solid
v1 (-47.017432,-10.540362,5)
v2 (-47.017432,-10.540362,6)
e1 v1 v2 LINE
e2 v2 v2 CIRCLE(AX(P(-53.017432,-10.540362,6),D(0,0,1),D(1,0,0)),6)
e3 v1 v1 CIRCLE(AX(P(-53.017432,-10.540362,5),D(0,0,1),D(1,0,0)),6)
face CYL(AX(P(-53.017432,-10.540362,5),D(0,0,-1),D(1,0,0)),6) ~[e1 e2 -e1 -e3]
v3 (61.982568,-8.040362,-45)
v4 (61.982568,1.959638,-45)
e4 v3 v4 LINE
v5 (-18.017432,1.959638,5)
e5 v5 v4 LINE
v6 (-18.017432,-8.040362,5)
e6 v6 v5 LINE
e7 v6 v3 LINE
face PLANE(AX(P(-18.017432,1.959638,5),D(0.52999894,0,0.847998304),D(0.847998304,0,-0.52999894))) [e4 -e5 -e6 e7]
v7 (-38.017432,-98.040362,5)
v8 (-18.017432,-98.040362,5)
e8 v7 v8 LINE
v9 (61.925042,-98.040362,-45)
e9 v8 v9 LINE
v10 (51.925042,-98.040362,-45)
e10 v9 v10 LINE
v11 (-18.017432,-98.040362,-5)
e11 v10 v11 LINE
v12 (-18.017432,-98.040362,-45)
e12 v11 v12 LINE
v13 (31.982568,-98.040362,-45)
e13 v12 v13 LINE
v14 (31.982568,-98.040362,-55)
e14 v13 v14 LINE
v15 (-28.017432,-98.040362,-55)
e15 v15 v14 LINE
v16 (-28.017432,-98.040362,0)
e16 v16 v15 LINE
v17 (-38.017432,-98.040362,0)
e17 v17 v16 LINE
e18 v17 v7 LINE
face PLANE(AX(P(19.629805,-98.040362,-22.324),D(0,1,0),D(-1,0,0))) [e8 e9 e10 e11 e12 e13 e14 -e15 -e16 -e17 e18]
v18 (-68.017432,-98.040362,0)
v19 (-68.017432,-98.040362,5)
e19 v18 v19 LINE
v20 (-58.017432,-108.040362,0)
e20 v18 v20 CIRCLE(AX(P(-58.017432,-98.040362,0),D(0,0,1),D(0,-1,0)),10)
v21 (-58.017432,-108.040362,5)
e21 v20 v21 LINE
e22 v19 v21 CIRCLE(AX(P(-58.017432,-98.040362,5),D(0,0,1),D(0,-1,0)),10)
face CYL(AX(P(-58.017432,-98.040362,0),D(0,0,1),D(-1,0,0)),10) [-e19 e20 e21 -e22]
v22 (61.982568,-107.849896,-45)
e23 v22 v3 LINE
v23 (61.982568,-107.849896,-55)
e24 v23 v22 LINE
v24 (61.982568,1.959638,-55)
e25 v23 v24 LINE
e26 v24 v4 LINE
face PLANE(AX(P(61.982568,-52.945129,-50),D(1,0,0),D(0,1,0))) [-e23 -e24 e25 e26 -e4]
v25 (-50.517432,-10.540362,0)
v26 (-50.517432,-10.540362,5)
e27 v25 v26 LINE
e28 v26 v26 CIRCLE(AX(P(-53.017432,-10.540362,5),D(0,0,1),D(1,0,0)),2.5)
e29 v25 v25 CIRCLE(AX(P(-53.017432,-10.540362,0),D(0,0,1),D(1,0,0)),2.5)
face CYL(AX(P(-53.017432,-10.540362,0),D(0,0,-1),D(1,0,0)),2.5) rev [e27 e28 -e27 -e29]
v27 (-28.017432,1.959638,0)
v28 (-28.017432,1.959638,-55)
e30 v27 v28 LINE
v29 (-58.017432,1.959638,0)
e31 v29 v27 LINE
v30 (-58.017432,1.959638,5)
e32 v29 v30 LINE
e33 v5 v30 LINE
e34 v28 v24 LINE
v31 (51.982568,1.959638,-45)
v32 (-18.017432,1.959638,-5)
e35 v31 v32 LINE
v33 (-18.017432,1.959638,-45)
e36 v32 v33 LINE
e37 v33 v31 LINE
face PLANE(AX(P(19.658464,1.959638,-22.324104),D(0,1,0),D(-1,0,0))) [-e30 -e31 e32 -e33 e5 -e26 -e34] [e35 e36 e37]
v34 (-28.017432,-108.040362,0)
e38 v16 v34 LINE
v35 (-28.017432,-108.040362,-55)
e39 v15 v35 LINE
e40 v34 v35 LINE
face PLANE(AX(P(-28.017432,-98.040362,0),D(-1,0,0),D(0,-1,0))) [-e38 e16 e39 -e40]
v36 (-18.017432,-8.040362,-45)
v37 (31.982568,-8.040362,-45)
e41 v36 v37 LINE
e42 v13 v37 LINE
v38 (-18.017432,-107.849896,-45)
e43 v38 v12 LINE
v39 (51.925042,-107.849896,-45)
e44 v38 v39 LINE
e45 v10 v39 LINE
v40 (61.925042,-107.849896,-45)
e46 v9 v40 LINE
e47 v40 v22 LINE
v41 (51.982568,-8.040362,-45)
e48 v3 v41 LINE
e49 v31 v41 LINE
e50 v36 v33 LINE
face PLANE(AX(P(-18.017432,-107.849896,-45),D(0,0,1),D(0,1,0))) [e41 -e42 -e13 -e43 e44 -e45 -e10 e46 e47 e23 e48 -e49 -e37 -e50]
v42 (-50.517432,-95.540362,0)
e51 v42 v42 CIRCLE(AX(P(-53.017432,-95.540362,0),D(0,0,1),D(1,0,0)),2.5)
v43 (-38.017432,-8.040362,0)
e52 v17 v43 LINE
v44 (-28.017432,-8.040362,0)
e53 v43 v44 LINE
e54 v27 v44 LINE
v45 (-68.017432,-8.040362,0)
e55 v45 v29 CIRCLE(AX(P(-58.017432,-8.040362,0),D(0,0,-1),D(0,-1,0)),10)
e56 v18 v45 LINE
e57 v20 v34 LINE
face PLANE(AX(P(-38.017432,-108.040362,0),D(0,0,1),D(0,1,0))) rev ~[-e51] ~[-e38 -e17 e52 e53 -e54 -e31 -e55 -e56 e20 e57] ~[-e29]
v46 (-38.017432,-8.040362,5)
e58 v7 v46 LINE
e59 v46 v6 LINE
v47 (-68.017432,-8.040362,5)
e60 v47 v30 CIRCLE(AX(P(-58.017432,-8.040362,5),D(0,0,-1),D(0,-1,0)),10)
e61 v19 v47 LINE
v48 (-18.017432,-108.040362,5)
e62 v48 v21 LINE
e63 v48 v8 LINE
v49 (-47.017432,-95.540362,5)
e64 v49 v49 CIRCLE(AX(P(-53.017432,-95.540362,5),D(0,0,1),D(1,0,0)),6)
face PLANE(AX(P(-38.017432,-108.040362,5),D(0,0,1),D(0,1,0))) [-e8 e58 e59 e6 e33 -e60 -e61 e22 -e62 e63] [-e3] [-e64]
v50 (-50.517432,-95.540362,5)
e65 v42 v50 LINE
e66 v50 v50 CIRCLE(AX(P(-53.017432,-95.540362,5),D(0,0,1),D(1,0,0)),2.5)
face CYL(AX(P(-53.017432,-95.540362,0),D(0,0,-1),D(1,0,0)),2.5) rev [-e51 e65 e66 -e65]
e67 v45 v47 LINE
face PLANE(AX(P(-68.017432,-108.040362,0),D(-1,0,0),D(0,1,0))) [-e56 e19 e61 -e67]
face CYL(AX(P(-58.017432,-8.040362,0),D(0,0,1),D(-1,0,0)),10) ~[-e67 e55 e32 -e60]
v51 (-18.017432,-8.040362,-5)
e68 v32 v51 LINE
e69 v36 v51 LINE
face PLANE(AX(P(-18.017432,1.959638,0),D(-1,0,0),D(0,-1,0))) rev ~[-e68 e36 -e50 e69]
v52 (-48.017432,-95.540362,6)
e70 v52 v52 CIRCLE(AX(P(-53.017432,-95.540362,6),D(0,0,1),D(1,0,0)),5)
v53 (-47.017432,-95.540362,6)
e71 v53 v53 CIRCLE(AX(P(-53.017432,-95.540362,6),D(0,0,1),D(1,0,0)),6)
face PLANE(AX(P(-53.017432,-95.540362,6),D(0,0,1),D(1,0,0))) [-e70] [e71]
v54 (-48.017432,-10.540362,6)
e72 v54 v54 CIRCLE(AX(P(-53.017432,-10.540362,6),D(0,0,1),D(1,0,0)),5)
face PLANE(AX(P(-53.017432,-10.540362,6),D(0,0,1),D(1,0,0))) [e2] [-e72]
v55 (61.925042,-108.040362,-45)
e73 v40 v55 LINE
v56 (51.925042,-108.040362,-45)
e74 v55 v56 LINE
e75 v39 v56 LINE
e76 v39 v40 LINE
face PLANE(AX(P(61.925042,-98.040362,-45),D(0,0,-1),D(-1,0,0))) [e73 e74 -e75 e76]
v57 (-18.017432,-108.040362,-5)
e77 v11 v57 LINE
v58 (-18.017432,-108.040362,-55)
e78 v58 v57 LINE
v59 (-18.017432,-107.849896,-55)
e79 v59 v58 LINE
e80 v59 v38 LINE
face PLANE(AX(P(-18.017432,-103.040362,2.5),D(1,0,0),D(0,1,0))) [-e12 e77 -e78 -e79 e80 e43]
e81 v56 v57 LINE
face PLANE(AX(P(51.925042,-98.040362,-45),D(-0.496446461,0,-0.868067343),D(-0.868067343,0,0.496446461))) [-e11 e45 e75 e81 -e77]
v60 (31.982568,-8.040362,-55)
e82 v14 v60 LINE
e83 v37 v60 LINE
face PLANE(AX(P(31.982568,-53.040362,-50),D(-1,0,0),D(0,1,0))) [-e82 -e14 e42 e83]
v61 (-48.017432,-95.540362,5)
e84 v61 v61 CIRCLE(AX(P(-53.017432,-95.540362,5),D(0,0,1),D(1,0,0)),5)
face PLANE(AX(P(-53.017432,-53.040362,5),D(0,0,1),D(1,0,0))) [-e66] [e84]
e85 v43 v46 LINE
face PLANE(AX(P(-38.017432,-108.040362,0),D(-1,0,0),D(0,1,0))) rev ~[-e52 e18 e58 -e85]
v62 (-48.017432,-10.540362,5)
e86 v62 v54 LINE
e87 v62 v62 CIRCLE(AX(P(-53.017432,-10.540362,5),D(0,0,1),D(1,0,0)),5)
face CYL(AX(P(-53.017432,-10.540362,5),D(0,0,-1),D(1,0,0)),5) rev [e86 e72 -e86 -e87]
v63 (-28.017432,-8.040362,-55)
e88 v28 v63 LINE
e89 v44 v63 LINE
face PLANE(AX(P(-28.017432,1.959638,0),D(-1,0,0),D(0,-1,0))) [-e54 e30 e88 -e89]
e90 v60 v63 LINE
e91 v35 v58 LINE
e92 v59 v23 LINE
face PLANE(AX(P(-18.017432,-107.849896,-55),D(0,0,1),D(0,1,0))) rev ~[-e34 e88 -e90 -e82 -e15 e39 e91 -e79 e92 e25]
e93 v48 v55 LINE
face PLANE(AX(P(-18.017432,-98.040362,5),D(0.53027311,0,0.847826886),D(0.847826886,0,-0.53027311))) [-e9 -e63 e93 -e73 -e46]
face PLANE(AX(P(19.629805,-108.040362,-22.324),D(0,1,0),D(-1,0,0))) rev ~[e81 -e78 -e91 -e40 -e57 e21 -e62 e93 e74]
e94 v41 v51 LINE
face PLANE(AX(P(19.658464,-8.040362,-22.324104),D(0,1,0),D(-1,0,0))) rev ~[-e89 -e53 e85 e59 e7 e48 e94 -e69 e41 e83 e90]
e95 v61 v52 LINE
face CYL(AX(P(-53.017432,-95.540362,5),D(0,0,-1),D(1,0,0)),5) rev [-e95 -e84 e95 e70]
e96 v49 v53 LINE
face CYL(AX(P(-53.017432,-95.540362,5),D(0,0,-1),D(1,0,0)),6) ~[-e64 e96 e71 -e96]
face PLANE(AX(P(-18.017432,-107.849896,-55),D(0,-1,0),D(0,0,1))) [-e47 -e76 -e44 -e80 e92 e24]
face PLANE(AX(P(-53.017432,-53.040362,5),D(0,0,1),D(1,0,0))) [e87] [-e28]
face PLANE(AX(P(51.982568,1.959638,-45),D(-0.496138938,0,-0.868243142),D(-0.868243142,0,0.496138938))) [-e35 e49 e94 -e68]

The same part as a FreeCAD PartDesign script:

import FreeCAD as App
import Part
import Sketcher
from FreeCAD import Vector
Q = App.Units.Quantity


def edges_at(feature, points):
    """Names of the edges that pass closest to the given points."""
    edges = feature.Shape.Edges
    near = lambda p: min(range(len(edges)), key=lambda i: edges[i].distToShape(Part.Vertex(*p))[0])
    return sorted({f"Edge{near(p) + 1}" for p in points})


def add_polygon(sketch, points):
    """Adds a closed chain of lines whose ends are joined by coincident constraints."""
    first, n = sketch.GeometryCount, len(points)
    for a, b in zip(points, points[1:] + points[:1]):
        sketch.addGeometry(Part.LineSegment(App.Vector(*a, 0), App.Vector(*b, 0)), False)
    for i in range(n):
        sketch.addConstraint(Sketcher.Constraint("Coincident", first + i, 2, first + (i + 1) % n, 1))

doc = App.newDocument("Part")
params = doc.addObject("Spreadsheet::Sheet", "Params")
for row, (alias, value) in enumerate([
    ("sketch1_diameter", "5 mm"),
    ("sketch1_width", "30 mm"),
    ("sketch1_height", "110 mm"),
    ("pad1_length", "5 mm"),
    ("fillet_radius", "10 mm"),
    ("sketch2_diameter", "12 mm"),
    ("sketch2_diameter2", "10 mm"),
    ("pad2_length", "1 mm"),
    ("sketch3_width", "10 mm"),
    ("sketch3_height", "5 mm"),
    ("pad3_length", "20 mm"),
    ("sketch4_width", "10 mm"),
    ("pad4_length", "55 mm"),
    ("sketch5_height", "10 mm"),
    ("pad5_length", "80 mm"),
    ("sketch6_width", "90 mm"),
    ("sketch6_height", "10 mm"),
    ("pocket1_length", "50 mm"),
    ("sketch7_width", "10 mm"),
    ("pad6_length", "10 mm"),
    ("sketch8_width", "10 mm"),
    ("pad7_length", "10 mm"),
], start=1):
    params.set(f"A{row}", alias)
    params.set(f"B{row}", "=" + value)
    params.setAlias(f"B{row}", alias)

body = doc.addObject("PartDesign::Body", "Body")

sketch1 = body.newObject("Sketcher::SketchObject", "Sketch")
sketch1.AttachmentSupport = (doc.getObject("XY_Plane"), [""])
sketch1.MapMode = "FlatFace"
add_polygon(sketch1, [(-68, 2), (-68, -108), (-38, -108), (-38, 2)])
sketch1.addGeometry(Part.Circle(Vector(-53, -95.5, 0), Vector(0, 0, 1), 2.5), False)
sketch1.addGeometry(Part.Circle(Vector(-53, -10.5, 0), Vector(0, 0, 1), 2.5), False)
sketch1.addConstraint([
    Sketcher.Constraint("Vertical", 0),
    Sketcher.Constraint("Horizontal", 1),
    Sketcher.Constraint("Vertical", 2),
    Sketcher.Constraint("Horizontal", 3),
    Sketcher.Constraint("Equal", 4, 5),
    Sketcher.Constraint("Vertical", 4, 3, 5, 3),
    Sketcher.Constraint("Diameter", 4, Q("5 mm")),
    Sketcher.Constraint("DistanceX", 1, 1, 1, 2, Q("30 mm")),
    Sketcher.Constraint("DistanceY", 0, 2, 0, 1, Q("110 mm")),
    Sketcher.Constraint("DistanceY", 4, 3, 5, 3, Q("85 mm")),
    Sketcher.Constraint("DistanceX", 0, 2, 4, 3, Q("15 mm")),
    Sketcher.Constraint("DistanceY", 0, 2, 4, 3, Q("12.5 mm")),
    Sketcher.Constraint("DistanceY", 4, 3, -1, 1, Q("95.540362 mm")),
    Sketcher.Constraint("DistanceX", 0, 2, -1, 1, Q("68.017432 mm")),
])
sketch1.setExpression("Constraints[10]", "Params.sketch1_diameter")
sketch1.setExpression("Constraints[11]", "Params.sketch1_width")
sketch1.setExpression("Constraints[12]", "Params.sketch1_height")
pad1 = body.newObject("PartDesign::Pad", "Pad")
pad1.Profile = sketch1
pad1.setExpression("Length", "Params.pad1_length")
doc.recompute()

fillet = body.newObject("PartDesign::Fillet", "Fillet")
fillet.Base = (pad1, edges_at(pad1, [(-68.017, -108.04, 2.5), (-68.017, 1.96, 2.5)]))
fillet.setExpression("Radius", "Params.fillet_radius")

sketch2 = body.newObject("Sketcher::SketchObject", "Sketch001")
sketch2.AttachmentSupport = (doc.getObject("XY_Plane"), [""])
sketch2.MapMode = "FlatFace"
sketch2.AttachmentOffset = App.Placement(Vector(0, 0, 5), App.Rotation())
sketch2.addGeometry([
    Part.Circle(Vector(-53, -11, 0), Vector(0, 0, 1), 6),
    Part.Circle(Vector(-53, -11, 0), Vector(0, 0, 1), 5),
    Part.Circle(Vector(-53, -96, 0), Vector(0, 0, 1), 6),
    Part.Circle(Vector(-53, -96, 0), Vector(0, 0, 1), 5),
], False)
sketch2.addConstraint([
    Sketcher.Constraint("Coincident", 1, 3, 0, 3),
    Sketcher.Constraint("Coincident", 3, 3, 2, 3),
    Sketcher.Constraint("Equal", 0, 2),
    Sketcher.Constraint("Equal", 1, 3),
    Sketcher.Constraint("Vertical", 1, 3, 2, 3),
    Sketcher.Constraint("Diameter", 0, Q("12 mm")),
    Sketcher.Constraint("Diameter", 1, Q("10 mm")),
    Sketcher.Constraint("DistanceY", 2, 3, 0, 3, Q("85 mm")),
    Sketcher.Constraint("DistanceY", 2, 3, -1, 1, Q("95.540362 mm")),
    Sketcher.Constraint("DistanceX", 0, 3, -1, 1, Q("53.017432 mm")),
])
sketch2.setExpression("Constraints[5]", "Params.sketch2_diameter")
sketch2.setExpression("Constraints[6]", "Params.sketch2_diameter2")
pad2 = body.newObject("PartDesign::Pad", "Pad001")
pad2.Profile = sketch2
pad2.setExpression("Length", "Params.pad2_length")

sketch3 = body.newObject("Sketcher::SketchObject", "Sketch002")
sketch3.AttachmentSupport = (doc.getObject("YZ_Plane"), [""])
sketch3.MapMode = "FlatFace"
sketch3.AttachmentOffset = App.Placement(Vector(0, 0, -38.017432), App.Rotation())
add_polygon(sketch3, [(-108, 5), (-108, 0), (-98, 0), (-98, 5)])
add_polygon(sketch3, [(-8, 5), (-8, 0), (2, 0), (2, 5)])
sketch3.addConstraint([
    Sketcher.Constraint("Vertical", 0),
    Sketcher.Constraint("Horizontal", 1),
    Sketcher.Constraint("Vertical", 2),
    Sketcher.Constraint("Horizontal", 3),
    Sketcher.Constraint("Vertical", 4),
    Sketcher.Constraint("Horizontal", 5),
    Sketcher.Constraint("Vertical", 6),
    Sketcher.Constraint("Horizontal", 7),
    Sketcher.Constraint("PointOnObject", 0, 2, -1),
    Sketcher.Constraint("PointOnObject", 4, 2, -1),
    Sketcher.Constraint("Horizontal", 3, 2, 6, 2),
    Sketcher.Constraint("Equal", 3, 5),
    Sketcher.Constraint("DistanceX", 1, 1, 1, 2, Q("10 mm")),
    Sketcher.Constraint("DistanceY", 0, 2, 0, 1, Q("5 mm")),
    Sketcher.Constraint("DistanceX", 1, 2, 4, 2, Q("90 mm")),
    Sketcher.Constraint("DistanceX", 0, 2, -1, 1, Q("108.040362 mm")),
])
sketch3.setExpression("Constraints[20]", "Params.sketch3_width")
sketch3.setExpression("Constraints[21]", "Params.sketch3_height")
pad3 = body.newObject("PartDesign::Pad", "Pad002")
pad3.Profile = sketch3
pad3.setExpression("Length", "Params.pad3_length")

sketch4 = body.newObject("Sketcher::SketchObject", "Sketch003")
sketch4.AttachmentSupport = (doc.getObject("XY_Plane"), [""])
sketch4.MapMode = "FlatFace"
add_polygon(sketch4, [(-28, -8), (-28, 2), (-18, 2), (-18, -8)])
add_polygon(sketch4, [(-28, -108), (-28, -98), (-18, -98), (-18, -108)])
sketch4.addConstraint([
    Sketcher.Constraint("Vertical", 0),
    Sketcher.Constraint("Horizontal", 1),
    Sketcher.Constraint("Vertical", 2),
    Sketcher.Constraint("Horizontal", 3),
    Sketcher.Constraint("Vertical", 4),
    Sketcher.Constraint("Horizontal", 5),
    Sketcher.Constraint("Vertical", 6),
    Sketcher.Constraint("Horizontal", 7),
    Sketcher.Constraint("Vertical", 3, 2, 4, 2),
    Sketcher.Constraint("Vertical", 2, 2, 5, 2),
    Sketcher.Constraint("Equal", 7, 0),
    Sketcher.Constraint("Equal", 2, 4),
    Sketcher.Constraint("DistanceX", 1, 1, 1, 2, Q("10 mm")),
    Sketcher.Constraint("DistanceY", 4, 2, 3, 2, Q("90 mm")),
    Sketcher.Constraint("DistanceX", 0, 2, -1, 1, Q("28.017432 mm")),
    Sketcher.Constraint("DistanceY", 4, 2, -1, 1, Q("98.040362 mm")),
])
sketch4.setExpression("Constraints[20]", "Params.sketch4_width")
pad4 = body.newObject("PartDesign::Pad", "Pad003")
pad4.Profile = sketch4
pad4.setExpression("Length", "Params.pad4_length")
pad4.Reversed = True

sketch5 = body.newObject("Sketcher::SketchObject", "Sketch004")
sketch5.AttachmentSupport = (doc.getObject("YZ_Plane"), [""])
sketch5.MapMode = "FlatFace"
sketch5.AttachmentOffset = App.Placement(Vector(0, 0, -18.017432), App.Rotation())
add_polygon(sketch5, [(-108, -45), (-108, -55), (2, -55), (2, -45)])
sketch5.addConstraint([
    Sketcher.Constraint("Vertical", 0),
    Sketcher.Constraint("Horizontal", 1),
    Sketcher.Constraint("Vertical", 2),
    Sketcher.Constraint("Horizontal", 3),
    Sketcher.Constraint("DistanceY", 0, 2, 0, 1, Q("10 mm")),
    Sketcher.Constraint("DistanceY", 0, 2, -1, 1, Q("55 mm")),
    Sketcher.Constraint("DistanceX", 1, 1, 1, 2, Q("109.809534 mm")),
    Sketcher.Constraint("DistanceX", 0, 2, -1, 1, Q("107.849896 mm")),
])
sketch5.setExpression("Constraints[8]", "Params.sketch5_height")
pad5 = body.newObject("PartDesign::Pad", "Pad004")
pad5.Profile = sketch5
pad5.setExpression("Length", "Params.pad5_length")

sketch6 = body.newObject("Sketcher::SketchObject", "Sketch005")
sketch6.AttachmentSupport = (doc.getObject("YZ_Plane"), [""])
sketch6.MapMode = "FlatFace"
sketch6.AttachmentOffset = App.Placement(Vector(0, 0, -18.017432), App.Rotation())
add_polygon(sketch6, [(-98, -55), (-98, -45), (-8, -45), (-8, -55)])
sketch6.addConstraint([
    Sketcher.Constraint("Vertical", 0),
    Sketcher.Constraint("Horizontal", 1),
    Sketcher.Constraint("Vertical", 2),
    Sketcher.Constraint("Horizontal", 3),
    Sketcher.Constraint("DistanceX", 1, 1, 1, 2, Q("90 mm")),
    Sketcher.Constraint("DistanceY", 0, 1, 0, 2, Q("10 mm")),
    Sketcher.Constraint("DistanceY", 0, 2, -1, 1, Q("45 mm")),
    Sketcher.Constraint("DistanceX", 0, 2, -1, 1, Q("98.040362 mm")),
])
sketch6.setExpression("Constraints[8]", "Params.sketch6_width")
sketch6.setExpression("Constraints[9]", "Params.sketch6_height")
pocket1 = body.newObject("PartDesign::Pocket", "Pocket")
pocket1.Profile = sketch6
pocket1.setExpression("Length", "Params.pocket1_length")
pocket1.Reversed = True

sketch7 = body.newObject("Sketcher::SketchObject", "Sketch006")
sketch7.AttachmentSupport = (doc.getObject("XZ_Plane"), [""])
sketch7.MapMode = "FlatFace"
sketch7.AttachmentOffset = App.Placement(Vector(0, 0, -1.959638), App.Rotation())
add_polygon(sketch7, [(-18, -5), (-18, 5), (62, -45), (52, -45)])
sketch7.addConstraint([
    Sketcher.Constraint("Vertical", 0),
    Sketcher.Constraint("Horizontal", 2),
    Sketcher.Constraint("Equal", 2, 0),
    Sketcher.Constraint("DistanceX", 2, 2, 2, 1, Q("10 mm")),
    Sketcher.Constraint("DistanceY", -1, 1, 0, 2, Q("5 mm")),
    Sketcher.Constraint("DistanceY", 1, 2, -1, 1, Q("45 mm")),
    Sketcher.Constraint("DistanceX", 0, 2, 1, 2, Q("80 mm")),
    Sketcher.Constraint("DistanceX", 0, 2, -1, 1, Q("18.017432 mm")),
])
sketch7.setExpression("Constraints[7]", "Params.sketch7_width")
pad6 = body.newObject("PartDesign::Pad", "Pad005")
pad6.Profile = sketch7
pad6.setExpression("Length", "Params.pad6_length")

sketch8 = body.newObject("Sketcher::SketchObject", "Sketch007")
sketch8.AttachmentSupport = (doc.getObject("XZ_Plane"), [""])
sketch8.MapMode = "FlatFace"
sketch8.AttachmentOffset = App.Placement(Vector(0, 0, 98.040362), App.Rotation())
add_polygon(sketch8, [(-18, -5), (-18, 5), (62, -45), (52, -45)])
sketch8.addConstraint([
    Sketcher.Constraint("Vertical", 0),
    Sketcher.Constraint("Horizontal", 2),
    Sketcher.Constraint("Equal", 2, 0),
    Sketcher.Constraint("DistanceX", 2, 2, 2, 1, Q("10 mm")),
    Sketcher.Constraint("DistanceY", -1, 1, 0, 2, Q("5 mm")),
    Sketcher.Constraint("DistanceY", 1, 2, -1, 1, Q("45 mm")),
    Sketcher.Constraint("DistanceX", 0, 2, -1, 1, Q("18.017432 mm")),
    Sketcher.Constraint("DistanceX", -1, 1, 1, 2, Q("61.925042 mm")),
])
sketch8.setExpression("Constraints[7]", "Params.sketch8_width")
pad7 = body.newObject("PartDesign::Pad", "Pad006")
pad7.Profile = sketch8
pad7.setExpression("Length", "Params.pad7_length")

doc.recompute()
